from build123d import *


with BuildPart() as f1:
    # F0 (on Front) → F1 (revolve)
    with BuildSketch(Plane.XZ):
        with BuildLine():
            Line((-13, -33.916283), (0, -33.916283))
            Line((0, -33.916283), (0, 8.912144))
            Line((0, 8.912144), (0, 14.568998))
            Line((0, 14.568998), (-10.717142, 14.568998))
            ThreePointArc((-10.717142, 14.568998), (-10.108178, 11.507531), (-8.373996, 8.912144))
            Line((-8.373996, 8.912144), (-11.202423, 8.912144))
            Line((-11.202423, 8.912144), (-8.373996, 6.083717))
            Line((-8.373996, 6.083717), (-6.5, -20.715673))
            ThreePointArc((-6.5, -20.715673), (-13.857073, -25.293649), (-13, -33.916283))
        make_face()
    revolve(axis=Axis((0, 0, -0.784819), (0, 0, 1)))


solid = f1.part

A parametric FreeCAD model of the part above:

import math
import FreeCAD as App
import Part
import Sketcher
Q = App.Units.Quantity

doc = App.newDocument("Part")
body = doc.addObject("PartDesign::Body", "Body")

sketch1 = body.newObject("Sketcher::SketchObject", "Sketch")
sketch1.AttachmentSupport = (doc.getObject("XZ_Plane"), [""])
sketch1.MapMode = "FlatFace"
sketch1.addGeometry(Part.LineSegment(App.Vector(-13, -33.9, 0), App.Vector(0, -33.9, 0)), False)
sketch1.addGeometry(Part.LineSegment(App.Vector(0, -33.9, 0), App.Vector(0, 14.6, 0)), False)
sketch1.addGeometry(Part.LineSegment(App.Vector(0, 14.6, 0), App.Vector(-10.7, 14.6, 0)), False)
sketch1.addGeometry(Part.ArcOfCircle(Part.Circle(App.Vector(-2.7, 14.6, 0), App.Vector(0, 0, 1), 8), math.radians(-180), math.radians(-135)), False)
sketch1.addGeometry(Part.LineSegment(App.Vector(-8.4, 8.9, 0), App.Vector(-11.2, 8.9, 0)), False)
sketch1.addGeometry(Part.LineSegment(App.Vector(-11.2, 8.9, 0), App.Vector(-8.4, 6.1, 0)), False)
sketch1.addGeometry(Part.LineSegment(App.Vector(-8.4, 6.1, 0), App.Vector(-6.5, -20.7, 0)), False)
sketch1.addGeometry(Part.ArcOfCircle(Part.Circle(App.Vector(-6.5, -28.9, 0), App.Vector(0, 0, 1), 8.2), math.radians(90), math.radians(218)), False)
sketch1.addConstraint(Sketcher.Constraint("Coincident", 0, 2, 1, 1))
sketch1.addConstraint(Sketcher.Constraint("Coincident", 1, 2, 2, 1))
sketch1.addConstraint(Sketcher.Constraint("Coincident", 2, 2, 3, 1))
sketch1.addConstraint(Sketcher.Constraint("Coincident", 3, 2, 4, 1))
sketch1.addConstraint(Sketcher.Constraint("Coincident", 4, 2, 5, 1))
sketch1.addConstraint(Sketcher.Constraint("Coincident", 5, 2, 6, 1))
sketch1.addConstraint(Sketcher.Constraint("Coincident", 6, 2, 7, 1))
sketch1.addConstraint(Sketcher.Constraint("Coincident", 7, 2, 0, 1))
sketch1.addConstraint(Sketcher.Constraint("Horizontal", 0))
sketch1.addConstraint(Sketcher.Constraint("Vertical", 1))
sketch1.addConstraint(Sketcher.Constraint("Horizontal", 2))
sketch1.addConstraint(Sketcher.Constraint("Horizontal", 4))
sketch1.addConstraint(Sketcher.Constraint("PointOnObject", 0, 2, -2))
sketch1.addConstraint(Sketcher.Constraint("Horizontal", 3, 3, 1, 2))
sketch1.addConstraint(Sketcher.Constraint("Vertical", 3, 2, 5, 2))
sketch1.addConstraint(Sketcher.Constraint("Vertical", 7, 3, 6, 2))
sketch1.addConstraint(Sketcher.Constraint("DistanceX", 0, 1, 0, 2, 13.0))
sketch1.addConstraint(Sketcher.Constraint("Angle", 5, Q("-45 deg")))
sketch1.addConstraint(Sketcher.Constraint("Angle", 6, Q("-86 deg")))
sketch1.addConstraint(Sketcher.Constraint("Distance", 5, 4.0))
sketch1.addConstraint(Sketcher.Constraint("DistanceY", 0, 2, 7, 3, 5.0))
sketch1.addConstraint(Sketcher.Constraint("DistanceY", 7, 2, 5, 2, 40.0))
sketch1.addConstraint(Sketcher.Constraint("DistanceX", 7, 3, -1, 1, 6.5))
sketch1.addConstraint(Sketcher.Constraint("DistanceY", -1, 1, 3, 3, 14.569))
sketch1.addConstraint(Sketcher.Constraint("Radius", 3, 8.000003))
sketch1.addConstraint(Sketcher.Constraint("DistanceY", 1, 1, 1, 2, 48.485281))
revolution = body.newObject("PartDesign::Revolution", "Revolution")
revolution.Profile = sketch1
revolution.ReferenceAxis = (sketch1, ["V_Axis"])
revolution.Angle = 360

doc.recompute()
